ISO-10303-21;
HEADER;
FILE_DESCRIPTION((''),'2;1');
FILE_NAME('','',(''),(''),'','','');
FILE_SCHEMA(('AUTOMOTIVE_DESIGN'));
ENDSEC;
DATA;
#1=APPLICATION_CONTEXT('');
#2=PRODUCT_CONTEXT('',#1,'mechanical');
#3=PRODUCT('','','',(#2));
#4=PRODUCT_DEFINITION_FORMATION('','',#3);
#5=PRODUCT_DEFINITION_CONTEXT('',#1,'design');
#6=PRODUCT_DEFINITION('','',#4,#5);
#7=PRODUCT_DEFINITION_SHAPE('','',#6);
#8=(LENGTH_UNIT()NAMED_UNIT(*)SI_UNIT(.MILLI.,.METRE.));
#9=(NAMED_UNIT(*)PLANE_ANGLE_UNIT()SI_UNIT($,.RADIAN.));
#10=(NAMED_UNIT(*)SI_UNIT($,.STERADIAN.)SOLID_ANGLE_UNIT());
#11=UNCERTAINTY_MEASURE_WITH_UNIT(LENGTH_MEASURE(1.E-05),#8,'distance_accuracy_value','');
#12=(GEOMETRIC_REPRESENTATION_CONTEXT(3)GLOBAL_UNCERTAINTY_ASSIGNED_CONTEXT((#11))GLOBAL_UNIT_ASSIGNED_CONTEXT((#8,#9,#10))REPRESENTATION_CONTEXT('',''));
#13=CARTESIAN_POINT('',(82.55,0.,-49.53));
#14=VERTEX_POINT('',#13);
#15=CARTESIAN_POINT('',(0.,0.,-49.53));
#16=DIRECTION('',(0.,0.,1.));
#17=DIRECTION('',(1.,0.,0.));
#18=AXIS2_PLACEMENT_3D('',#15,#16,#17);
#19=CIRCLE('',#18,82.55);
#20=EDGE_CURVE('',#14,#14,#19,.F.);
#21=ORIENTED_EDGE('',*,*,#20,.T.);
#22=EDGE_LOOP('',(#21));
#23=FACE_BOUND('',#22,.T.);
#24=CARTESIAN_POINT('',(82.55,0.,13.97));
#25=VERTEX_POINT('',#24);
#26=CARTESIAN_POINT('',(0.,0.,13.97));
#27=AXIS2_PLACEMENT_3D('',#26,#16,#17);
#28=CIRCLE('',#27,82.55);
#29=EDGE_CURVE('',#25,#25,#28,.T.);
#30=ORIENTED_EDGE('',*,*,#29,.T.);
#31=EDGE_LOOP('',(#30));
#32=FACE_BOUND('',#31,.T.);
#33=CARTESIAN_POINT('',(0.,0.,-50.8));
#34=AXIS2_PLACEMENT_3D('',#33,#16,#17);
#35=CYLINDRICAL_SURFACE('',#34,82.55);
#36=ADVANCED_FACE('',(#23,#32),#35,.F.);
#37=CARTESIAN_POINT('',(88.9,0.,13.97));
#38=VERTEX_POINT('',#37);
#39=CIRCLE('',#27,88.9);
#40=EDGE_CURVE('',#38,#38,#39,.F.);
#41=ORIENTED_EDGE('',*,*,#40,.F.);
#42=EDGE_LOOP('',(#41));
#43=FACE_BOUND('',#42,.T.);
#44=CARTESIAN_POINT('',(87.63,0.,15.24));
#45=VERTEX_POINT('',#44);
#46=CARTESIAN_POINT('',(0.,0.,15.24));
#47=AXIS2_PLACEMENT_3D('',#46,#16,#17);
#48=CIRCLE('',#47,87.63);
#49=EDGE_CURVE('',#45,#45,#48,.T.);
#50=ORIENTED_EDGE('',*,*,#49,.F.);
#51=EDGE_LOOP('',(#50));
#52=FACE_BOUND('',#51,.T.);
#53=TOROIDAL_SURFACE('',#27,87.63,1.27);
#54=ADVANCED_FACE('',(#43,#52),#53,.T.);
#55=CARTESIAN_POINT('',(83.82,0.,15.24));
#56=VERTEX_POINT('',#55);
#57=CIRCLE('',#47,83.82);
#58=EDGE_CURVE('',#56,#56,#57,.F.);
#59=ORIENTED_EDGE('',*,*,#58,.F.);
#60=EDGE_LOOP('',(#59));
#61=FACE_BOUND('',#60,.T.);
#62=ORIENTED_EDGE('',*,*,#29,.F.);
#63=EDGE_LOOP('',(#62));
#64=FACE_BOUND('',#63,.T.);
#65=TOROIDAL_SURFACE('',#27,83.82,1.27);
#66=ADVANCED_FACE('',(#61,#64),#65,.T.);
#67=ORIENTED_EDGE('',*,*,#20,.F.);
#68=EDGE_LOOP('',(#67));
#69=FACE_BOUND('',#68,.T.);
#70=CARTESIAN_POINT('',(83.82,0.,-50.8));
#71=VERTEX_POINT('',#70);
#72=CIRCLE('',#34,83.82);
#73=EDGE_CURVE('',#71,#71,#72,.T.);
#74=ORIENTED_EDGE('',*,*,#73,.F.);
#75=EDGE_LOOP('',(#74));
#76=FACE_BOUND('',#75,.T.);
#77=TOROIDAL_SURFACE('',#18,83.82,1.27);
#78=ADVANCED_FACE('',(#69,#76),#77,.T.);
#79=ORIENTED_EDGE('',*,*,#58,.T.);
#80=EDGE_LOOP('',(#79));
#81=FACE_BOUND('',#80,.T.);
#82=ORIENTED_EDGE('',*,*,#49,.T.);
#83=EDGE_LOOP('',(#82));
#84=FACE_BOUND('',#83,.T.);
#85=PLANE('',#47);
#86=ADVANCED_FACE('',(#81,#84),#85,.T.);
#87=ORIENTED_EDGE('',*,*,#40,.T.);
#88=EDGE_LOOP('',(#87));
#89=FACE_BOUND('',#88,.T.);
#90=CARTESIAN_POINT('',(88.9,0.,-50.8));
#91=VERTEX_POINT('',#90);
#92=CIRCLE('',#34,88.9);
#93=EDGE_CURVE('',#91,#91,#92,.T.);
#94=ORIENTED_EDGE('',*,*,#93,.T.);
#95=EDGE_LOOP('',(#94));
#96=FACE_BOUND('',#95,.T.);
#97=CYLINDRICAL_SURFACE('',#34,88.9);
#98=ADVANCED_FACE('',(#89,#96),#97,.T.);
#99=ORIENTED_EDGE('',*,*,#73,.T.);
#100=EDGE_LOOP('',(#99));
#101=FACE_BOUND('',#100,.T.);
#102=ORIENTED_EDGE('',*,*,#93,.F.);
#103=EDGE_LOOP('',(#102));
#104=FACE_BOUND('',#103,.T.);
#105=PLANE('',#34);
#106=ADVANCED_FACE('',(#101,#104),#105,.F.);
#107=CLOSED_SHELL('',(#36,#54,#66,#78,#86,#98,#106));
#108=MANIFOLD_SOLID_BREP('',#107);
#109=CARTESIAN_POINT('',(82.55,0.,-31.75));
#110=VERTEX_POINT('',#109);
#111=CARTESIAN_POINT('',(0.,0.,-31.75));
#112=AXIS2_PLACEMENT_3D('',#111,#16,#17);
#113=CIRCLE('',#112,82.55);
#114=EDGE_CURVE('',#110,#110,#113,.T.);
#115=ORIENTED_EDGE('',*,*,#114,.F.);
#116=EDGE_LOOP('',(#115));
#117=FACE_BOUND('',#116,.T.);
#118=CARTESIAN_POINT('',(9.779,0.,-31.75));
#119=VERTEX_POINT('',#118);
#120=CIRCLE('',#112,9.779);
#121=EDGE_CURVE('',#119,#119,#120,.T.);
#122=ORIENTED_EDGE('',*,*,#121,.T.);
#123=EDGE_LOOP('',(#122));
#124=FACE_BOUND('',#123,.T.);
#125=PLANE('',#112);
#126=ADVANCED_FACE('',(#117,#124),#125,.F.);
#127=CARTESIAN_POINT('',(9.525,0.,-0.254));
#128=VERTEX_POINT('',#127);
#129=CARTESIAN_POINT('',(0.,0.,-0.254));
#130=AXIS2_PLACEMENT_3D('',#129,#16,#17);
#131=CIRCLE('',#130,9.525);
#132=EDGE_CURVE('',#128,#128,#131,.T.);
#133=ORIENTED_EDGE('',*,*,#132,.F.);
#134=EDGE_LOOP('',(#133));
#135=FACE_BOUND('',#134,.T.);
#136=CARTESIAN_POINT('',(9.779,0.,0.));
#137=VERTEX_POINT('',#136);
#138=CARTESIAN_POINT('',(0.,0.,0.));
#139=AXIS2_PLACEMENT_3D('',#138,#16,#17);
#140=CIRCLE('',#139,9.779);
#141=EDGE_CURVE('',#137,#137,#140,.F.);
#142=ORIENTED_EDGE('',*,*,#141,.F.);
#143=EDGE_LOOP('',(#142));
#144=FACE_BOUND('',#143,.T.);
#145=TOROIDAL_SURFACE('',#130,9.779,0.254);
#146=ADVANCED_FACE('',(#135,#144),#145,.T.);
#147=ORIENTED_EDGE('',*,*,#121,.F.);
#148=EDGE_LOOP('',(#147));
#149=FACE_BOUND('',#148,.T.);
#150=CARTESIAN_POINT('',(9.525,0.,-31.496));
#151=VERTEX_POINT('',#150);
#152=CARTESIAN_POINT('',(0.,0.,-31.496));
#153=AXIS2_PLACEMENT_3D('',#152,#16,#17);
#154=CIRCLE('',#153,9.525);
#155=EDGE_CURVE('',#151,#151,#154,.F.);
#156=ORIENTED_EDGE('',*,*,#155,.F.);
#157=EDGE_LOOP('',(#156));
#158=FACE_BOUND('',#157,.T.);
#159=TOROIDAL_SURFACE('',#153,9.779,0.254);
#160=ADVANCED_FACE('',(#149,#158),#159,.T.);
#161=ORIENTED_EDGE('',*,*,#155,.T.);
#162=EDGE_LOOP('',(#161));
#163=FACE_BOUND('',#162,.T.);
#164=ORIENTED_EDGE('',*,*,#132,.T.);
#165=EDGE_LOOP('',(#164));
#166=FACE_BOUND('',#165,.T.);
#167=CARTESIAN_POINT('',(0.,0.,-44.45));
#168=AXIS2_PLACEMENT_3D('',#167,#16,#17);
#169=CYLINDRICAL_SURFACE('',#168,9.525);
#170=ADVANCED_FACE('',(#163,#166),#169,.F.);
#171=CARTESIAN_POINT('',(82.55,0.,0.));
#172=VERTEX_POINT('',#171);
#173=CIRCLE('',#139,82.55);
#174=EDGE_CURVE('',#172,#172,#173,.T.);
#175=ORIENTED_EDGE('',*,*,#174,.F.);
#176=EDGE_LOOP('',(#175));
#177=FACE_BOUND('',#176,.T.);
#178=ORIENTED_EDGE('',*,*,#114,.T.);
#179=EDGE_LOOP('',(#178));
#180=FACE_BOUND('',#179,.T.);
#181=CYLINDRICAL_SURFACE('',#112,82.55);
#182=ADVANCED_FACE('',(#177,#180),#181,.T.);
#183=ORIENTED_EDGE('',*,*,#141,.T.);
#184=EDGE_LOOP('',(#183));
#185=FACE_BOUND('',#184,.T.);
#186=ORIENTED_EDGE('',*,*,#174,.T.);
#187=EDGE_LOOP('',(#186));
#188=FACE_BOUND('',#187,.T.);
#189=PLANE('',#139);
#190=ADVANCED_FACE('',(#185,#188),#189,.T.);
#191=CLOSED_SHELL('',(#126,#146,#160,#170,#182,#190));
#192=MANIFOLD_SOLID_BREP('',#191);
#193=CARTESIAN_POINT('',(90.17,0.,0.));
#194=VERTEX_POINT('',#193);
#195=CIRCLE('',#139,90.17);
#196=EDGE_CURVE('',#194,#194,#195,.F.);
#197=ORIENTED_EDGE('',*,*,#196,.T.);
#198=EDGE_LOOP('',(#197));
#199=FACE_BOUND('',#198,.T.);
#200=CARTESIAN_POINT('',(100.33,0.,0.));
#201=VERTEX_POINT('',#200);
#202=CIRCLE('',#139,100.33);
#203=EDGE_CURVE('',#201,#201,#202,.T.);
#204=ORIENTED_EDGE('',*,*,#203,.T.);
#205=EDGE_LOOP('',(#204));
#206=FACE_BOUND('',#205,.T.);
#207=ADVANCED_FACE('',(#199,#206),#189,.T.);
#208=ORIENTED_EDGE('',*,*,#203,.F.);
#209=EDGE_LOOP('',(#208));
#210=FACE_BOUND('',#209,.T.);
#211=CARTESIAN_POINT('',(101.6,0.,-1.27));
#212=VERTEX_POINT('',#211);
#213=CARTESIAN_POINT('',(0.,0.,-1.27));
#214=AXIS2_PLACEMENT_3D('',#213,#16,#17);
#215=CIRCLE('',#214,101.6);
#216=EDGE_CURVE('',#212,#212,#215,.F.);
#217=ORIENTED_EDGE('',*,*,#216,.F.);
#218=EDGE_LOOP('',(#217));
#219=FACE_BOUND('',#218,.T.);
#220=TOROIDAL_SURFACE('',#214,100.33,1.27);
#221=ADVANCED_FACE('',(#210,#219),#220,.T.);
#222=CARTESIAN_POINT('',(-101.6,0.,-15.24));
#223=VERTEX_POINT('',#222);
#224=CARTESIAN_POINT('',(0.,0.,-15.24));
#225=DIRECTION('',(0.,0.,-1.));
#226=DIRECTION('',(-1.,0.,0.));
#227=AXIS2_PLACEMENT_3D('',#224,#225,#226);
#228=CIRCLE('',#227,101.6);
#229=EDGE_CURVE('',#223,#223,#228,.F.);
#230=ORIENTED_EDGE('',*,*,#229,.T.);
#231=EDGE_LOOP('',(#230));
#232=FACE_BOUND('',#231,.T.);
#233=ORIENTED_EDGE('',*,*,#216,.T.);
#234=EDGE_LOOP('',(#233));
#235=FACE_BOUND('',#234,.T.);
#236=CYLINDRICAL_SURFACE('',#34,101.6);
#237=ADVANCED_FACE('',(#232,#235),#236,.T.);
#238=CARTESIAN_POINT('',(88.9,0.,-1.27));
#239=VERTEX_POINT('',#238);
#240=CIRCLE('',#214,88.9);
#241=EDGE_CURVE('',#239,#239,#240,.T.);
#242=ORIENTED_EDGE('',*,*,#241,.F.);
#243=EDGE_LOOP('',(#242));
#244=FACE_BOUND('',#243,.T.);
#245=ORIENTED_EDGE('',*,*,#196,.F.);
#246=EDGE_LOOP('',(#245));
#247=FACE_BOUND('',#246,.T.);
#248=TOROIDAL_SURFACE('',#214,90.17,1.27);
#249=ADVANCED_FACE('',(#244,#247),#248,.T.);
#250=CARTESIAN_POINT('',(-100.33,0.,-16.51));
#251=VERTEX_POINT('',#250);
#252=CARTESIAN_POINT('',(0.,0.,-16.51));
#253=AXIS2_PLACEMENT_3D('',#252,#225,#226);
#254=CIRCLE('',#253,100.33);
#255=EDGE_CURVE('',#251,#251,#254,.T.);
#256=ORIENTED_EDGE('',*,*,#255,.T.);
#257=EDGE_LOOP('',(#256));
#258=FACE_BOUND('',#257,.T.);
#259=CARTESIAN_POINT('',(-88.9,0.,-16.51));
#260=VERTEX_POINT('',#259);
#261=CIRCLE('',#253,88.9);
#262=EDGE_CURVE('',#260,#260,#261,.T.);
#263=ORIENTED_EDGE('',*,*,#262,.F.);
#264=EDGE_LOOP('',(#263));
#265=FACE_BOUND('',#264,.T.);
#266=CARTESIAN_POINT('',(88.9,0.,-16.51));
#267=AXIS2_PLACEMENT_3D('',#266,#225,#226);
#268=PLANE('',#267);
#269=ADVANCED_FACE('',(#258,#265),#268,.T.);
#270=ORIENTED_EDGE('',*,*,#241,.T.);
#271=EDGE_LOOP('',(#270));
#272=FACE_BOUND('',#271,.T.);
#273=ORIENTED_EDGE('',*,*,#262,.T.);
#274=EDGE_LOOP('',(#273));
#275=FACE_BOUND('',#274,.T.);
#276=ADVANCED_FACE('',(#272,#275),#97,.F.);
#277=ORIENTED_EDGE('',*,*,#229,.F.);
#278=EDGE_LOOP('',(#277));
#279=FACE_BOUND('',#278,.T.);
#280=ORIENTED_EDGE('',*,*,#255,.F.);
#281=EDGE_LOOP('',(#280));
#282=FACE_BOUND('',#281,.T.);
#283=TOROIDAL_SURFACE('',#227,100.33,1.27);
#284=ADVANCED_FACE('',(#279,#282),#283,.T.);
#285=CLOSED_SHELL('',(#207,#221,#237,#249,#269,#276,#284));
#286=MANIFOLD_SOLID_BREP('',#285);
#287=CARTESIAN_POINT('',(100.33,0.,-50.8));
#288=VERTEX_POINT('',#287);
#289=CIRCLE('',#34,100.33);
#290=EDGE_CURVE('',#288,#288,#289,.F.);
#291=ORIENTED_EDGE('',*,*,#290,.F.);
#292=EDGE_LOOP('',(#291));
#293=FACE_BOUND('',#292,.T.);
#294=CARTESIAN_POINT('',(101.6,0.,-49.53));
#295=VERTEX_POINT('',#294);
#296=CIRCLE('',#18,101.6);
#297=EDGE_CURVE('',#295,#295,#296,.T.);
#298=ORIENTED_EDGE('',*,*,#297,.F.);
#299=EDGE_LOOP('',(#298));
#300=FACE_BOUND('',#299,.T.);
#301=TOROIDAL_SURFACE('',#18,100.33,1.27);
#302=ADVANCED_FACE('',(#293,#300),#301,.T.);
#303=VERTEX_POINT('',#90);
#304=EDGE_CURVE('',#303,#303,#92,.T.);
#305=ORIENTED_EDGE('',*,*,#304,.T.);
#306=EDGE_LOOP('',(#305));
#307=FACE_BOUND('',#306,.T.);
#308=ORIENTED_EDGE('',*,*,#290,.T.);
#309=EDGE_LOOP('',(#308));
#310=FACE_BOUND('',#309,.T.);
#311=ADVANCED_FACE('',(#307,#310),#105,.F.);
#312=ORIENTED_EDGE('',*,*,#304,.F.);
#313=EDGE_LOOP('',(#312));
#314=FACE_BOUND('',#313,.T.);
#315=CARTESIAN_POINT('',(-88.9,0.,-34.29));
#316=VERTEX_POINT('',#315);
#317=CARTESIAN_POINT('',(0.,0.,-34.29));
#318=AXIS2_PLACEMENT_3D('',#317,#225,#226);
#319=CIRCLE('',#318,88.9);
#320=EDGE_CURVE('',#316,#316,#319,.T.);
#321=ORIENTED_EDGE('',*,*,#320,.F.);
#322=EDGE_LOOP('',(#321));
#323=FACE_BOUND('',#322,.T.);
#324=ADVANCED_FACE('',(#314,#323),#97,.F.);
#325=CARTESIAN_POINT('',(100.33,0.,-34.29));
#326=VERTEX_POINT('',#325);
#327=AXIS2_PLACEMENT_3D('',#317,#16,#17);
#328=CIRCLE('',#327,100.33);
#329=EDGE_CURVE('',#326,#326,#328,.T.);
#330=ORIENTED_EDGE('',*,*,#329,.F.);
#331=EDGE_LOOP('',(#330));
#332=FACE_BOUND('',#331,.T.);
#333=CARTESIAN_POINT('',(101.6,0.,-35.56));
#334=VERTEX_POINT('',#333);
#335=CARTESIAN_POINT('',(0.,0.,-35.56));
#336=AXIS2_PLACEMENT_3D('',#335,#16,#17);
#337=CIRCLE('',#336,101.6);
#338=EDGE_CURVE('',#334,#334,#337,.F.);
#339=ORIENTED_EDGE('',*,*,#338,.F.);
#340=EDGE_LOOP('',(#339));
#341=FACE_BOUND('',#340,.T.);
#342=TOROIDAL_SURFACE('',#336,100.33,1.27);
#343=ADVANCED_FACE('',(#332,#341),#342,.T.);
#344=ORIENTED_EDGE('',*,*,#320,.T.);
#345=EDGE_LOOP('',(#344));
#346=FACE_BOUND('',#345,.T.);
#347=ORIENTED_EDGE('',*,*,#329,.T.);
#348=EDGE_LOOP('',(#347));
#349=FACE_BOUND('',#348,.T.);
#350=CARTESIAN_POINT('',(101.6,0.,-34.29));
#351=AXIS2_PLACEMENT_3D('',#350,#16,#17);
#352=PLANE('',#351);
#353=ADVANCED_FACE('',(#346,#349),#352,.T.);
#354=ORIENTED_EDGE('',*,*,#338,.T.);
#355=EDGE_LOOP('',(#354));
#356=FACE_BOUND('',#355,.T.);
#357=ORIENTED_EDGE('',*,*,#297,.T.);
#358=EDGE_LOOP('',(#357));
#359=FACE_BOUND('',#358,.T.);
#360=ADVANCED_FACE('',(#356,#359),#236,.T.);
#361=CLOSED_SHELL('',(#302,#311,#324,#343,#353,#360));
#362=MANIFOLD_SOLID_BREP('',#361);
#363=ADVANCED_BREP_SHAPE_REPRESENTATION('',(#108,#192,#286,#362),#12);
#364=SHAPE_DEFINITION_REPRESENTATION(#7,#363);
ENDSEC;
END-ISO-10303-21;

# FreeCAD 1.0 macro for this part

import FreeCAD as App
import Part
import Sketcher
Q = App.Units.Quantity


def edges_at(feature, points):
    """Names of the edges that pass closest to the given points."""
    edges = feature.Shape.Edges
    near = lambda p: min(range(len(edges)), key=lambda i: edges[i].distToShape(Part.Vertex(*p))[0])
    return sorted({f"Edge{near(p) + 1}" for p in points})

doc = App.newDocument("Part")
body = doc.addObject("PartDesign::Body", "Body")

# Sketch on XY plane
sketch1 = body.newObject("Sketcher::SketchObject", "Sketch")
sketch1.AttachmentSupport = (doc.getObject("XY_Plane"), [""])
sketch1.MapMode = "FlatFace"
sketch1.addGeometry(Part.Circle(App.Vector(0, 0, 0), App.Vector(0, 0, 1), 89), False)
sketch1.addGeometry(Part.Circle(App.Vector(0, 0, 0), App.Vector(0, 0, 1), 83), False)
sketch1.addConstraint(Sketcher.Constraint("Coincident", 0, 3, -1, 1))
sketch1.addConstraint(Sketcher.Constraint("Coincident", 1, 3, -1, 1))
sketch1.addConstraint(Sketcher.Constraint("Diameter", 0, Q("7 in")))
sketch1.addConstraint(Sketcher.Constraint("Diameter", 1, Q("6.5 in")))
pad1 = body.newObject("PartDesign::Pad", "Pad")
pad1.Profile = sketch1
pad1.Type = "TwoLengths"
pad1.Length = Q("0.6 in")
pad1.Length2 = Q("2 in")
doc.recompute()

fillet = body.newObject("PartDesign::Fillet", "Fillet")
fillet.Base = (pad1, edges_at(pad1, [(-82.55, 0, -50.8), (-82.55, 0, 15.24), (-88.9, 0, 15.24)]))
fillet.Radius = Q("0.05 in")
body2 = doc.addObject("PartDesign::Body", "Body001")
body2.AllowCompound = True

# Sketch on XY plane
sketch2 = body2.newObject("Sketcher::SketchObject", "Sketch001")
sketch2.AttachmentSupport = (doc.getObject("XY_Plane001"), [""])
sketch2.MapMode = "FlatFace"
sketch2.addGeometry(Part.Circle(App.Vector(0, 0, 0), App.Vector(0, 0, 1), 102), False)
sketch2.addGeometry(Part.Circle(App.Vector(0, 0, 0), App.Vector(0, 0, 1), 89), False)
sketch2.addConstraint(Sketcher.Constraint("Coincident", 0, 3, -1, 1))
sketch2.addConstraint(Sketcher.Constraint("Coincident", 1, 3, -1, 1))
sketch2.addConstraint(Sketcher.Constraint("Diameter", 0, Q("8 in")))
sketch2.addConstraint(Sketcher.Constraint("Diameter", 1, Q("7 in")))
pad2 = body2.newObject("PartDesign::Pad", "Pad001")
pad2.Profile = sketch2
pad2.Length = Q("2 in")
pad2.Reversed = True

# Sketch on XZ plane
sketch3 = body2.newObject("Sketcher::SketchObject", "Sketch002")
sketch3.AttachmentSupport = (doc.getObject("XZ_Plane001"), [""])
sketch3.MapMode = "FlatFace"
sketch3.addGeometry(Part.LineSegment(App.Vector(89, -34, 0), App.Vector(89, -17, 0)), False)
sketch3.addGeometry(Part.LineSegment(App.Vector(89, -17, 0), App.Vector(102, -17, 0)), False)
sketch3.addGeometry(Part.LineSegment(App.Vector(102, -17, 0), App.Vector(102, -34, 0)), False)
sketch3.addGeometry(Part.LineSegment(App.Vector(102, -34, 0), App.Vector(89, -34, 0)), False)
sketch3.addConstraint(Sketcher.Constraint("Coincident", 0, 2, 1, 1))
sketch3.addConstraint(Sketcher.Constraint("Coincident", 1, 2, 2, 1))
sketch3.addConstraint(Sketcher.Constraint("Coincident", 2, 2, 3, 1))
sketch3.addConstraint(Sketcher.Constraint("Coincident", 3, 2, 0, 1))
sketch3.addConstraint(Sketcher.Constraint("Vertical", 0))
sketch3.addConstraint(Sketcher.Constraint("Horizontal", 1))
sketch3.addConstraint(Sketcher.Constraint("Vertical", 2))
sketch3.addConstraint(Sketcher.Constraint("Horizontal", 3))
sketch3.addConstraint(Sketcher.Constraint("DistanceX", 1, 1, 1, 2, Q("0.5 in")))
sketch3.addConstraint(Sketcher.Constraint("DistanceY", 0, 1, 0, 2, Q("0.7 in")))
sketch3.addConstraint(Sketcher.Constraint("DistanceX", -1, 1, 1, 2, Q("4 in")))
sketch3.addConstraint(Sketcher.Constraint("DistanceY", 0, 2, -1, 1, Q("0.65 in")))
groove = body2.newObject("PartDesign::Groove", "Groove")
groove.Profile = sketch3
groove.ReferenceAxis = (sketch3, ["V_Axis"])
groove.Angle = 360
doc.recompute()

fillet2 = body2.newObject("PartDesign::Fillet", "Fillet001")
fillet2.Base = (groove, edges_at(groove, [(-101.6, 0, -16.51), (-101.6, 0, 0), (-88.9, 0, 0)]))
fillet2.Radius = Q("0.05 in")
doc.recompute()

fillet3 = body2.newObject("PartDesign::Fillet", "Fillet002")
fillet3.Base = (fillet2, edges_at(fillet2, [(-101.6, 0, -50.8), (-101.6, 0, -34.29)]))
fillet3.Radius = Q("0.05 in")
body3 = doc.addObject("PartDesign::Body", "Body002")

# Sketch on XY plane
sketch4 = body3.newObject("Sketcher::SketchObject", "Sketch003")
sketch4.AttachmentSupport = (doc.getObject("XY_Plane002"), [""])
sketch4.MapMode = "FlatFace"
sketch4.addGeometry(Part.Circle(App.Vector(0, 0, 0), App.Vector(0, 0, 1), 83), False)
sketch4.addConstraint(Sketcher.Constraint("Coincident", 0, 3, -1, 1))
sketch4.addConstraint(Sketcher.Constraint("Diameter", 0, Q("6.5 in")))
pad3 = body3.newObject("PartDesign::Pad", "Pad002")
pad3.Profile = sketch4
pad3.Length = Q("1.25 in")
pad3.Reversed = True

# Sketch on XY plane
sketch5 = body3.newObject("Sketcher::SketchObject", "Sketch004")
sketch5.AttachmentSupport = (doc.getObject("XY_Plane002"), [""])
sketch5.MapMode = "FlatFace"
sketch5.addGeometry(Part.Circle(App.Vector(0, 0, 0), App.Vector(0, 0, 1), 10), False)
sketch5.addConstraint(Sketcher.Constraint("Coincident", 0, 3, -1, 1))
sketch5.addConstraint(Sketcher.Constraint("Diameter", 0, Q("0.75 in")))
pocket1 = body3.newObject("PartDesign::Pocket", "Pocket")
pocket1.Profile = sketch5
pocket1.Length = Q("1.75 in")
doc.recompute()

fillet4 = body3.newObject("PartDesign::Fillet", "Fillet003")
fillet4.Base = (pocket1, edges_at(pocket1, [(-9.525, 0, -31.75), (-9.525, 0, 0)]))
fillet4.Radius = Q("0.01 in")

doc.recompute()
